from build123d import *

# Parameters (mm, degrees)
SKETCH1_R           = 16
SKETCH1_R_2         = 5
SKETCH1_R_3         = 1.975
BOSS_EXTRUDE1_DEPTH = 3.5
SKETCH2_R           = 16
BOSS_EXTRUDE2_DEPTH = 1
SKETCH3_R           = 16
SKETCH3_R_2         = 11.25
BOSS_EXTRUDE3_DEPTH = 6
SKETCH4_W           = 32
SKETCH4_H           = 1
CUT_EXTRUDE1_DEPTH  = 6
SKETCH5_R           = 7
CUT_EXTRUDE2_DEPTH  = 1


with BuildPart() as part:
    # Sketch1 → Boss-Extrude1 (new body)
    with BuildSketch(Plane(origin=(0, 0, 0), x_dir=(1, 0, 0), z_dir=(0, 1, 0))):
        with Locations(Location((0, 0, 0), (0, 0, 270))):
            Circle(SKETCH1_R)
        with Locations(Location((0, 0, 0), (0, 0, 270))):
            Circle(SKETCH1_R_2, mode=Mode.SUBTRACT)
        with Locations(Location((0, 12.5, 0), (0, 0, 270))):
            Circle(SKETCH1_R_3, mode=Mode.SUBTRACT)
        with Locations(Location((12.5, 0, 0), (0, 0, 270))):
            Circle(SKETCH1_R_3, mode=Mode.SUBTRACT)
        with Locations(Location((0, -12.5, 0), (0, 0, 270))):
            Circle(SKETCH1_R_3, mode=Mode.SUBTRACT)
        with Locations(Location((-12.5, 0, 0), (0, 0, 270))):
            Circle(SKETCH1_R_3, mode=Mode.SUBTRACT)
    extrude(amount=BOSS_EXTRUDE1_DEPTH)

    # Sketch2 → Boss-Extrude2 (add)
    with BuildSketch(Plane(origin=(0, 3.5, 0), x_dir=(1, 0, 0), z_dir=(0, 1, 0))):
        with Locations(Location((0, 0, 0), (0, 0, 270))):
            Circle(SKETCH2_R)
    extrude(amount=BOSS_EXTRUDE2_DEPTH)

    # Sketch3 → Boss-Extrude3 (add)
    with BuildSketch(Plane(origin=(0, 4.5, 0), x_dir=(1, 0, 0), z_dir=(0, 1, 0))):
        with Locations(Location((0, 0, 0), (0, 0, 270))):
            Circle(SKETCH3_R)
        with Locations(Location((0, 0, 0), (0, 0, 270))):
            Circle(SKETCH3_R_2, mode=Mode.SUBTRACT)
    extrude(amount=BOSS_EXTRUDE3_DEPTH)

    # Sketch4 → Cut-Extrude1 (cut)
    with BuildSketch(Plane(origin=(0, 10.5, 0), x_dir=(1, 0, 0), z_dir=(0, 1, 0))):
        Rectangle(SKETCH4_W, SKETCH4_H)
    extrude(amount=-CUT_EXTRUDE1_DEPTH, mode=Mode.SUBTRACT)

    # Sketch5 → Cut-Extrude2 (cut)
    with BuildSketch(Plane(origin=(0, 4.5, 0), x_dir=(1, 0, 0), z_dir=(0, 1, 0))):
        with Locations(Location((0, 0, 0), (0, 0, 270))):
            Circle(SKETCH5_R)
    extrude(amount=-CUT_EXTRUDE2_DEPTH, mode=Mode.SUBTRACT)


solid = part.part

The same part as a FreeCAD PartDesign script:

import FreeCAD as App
import Part
import Sketcher
from FreeCAD import Vector
Q = App.Units.Quantity

doc = App.newDocument("Part")
body = doc.addObject("PartDesign::Body", "Body")

# Sketch on XZ plane
sketch1 = body.newObject("Sketcher::SketchObject", "Sketch")
sketch1.AttachmentSupport = (doc.getObject("XZ_Plane"), [""])
sketch1.MapMode = "FlatFace"
sketch1.addGeometry([
    Part.Circle(Vector(0, 0, 0), Vector(0, 0, 1), 16),  # 0
    Part.Circle(Vector(0, -12.5, 0), Vector(0, 0, 1), 1.975),  # 1
    Part.Circle(Vector(-12.5, 0, 0), Vector(0, 0, 1), 1.975),  # 2
    Part.Circle(Vector(0, 0, 0), Vector(0, 0, 1), 5),  # 3
    Part.Circle(Vector(12.5, 0, 0), Vector(0, 0, 1), 1.975),  # 4
    Part.Circle(Vector(0, 12.5, 0), Vector(0, 0, 1), 1.975),  # 5
], False)
sketch1.addConstraint([
    Sketcher.Constraint("Coincident", 0, 3, -1, 1),
    Sketcher.Constraint("Coincident", 3, 3, -1, 1),
    Sketcher.Constraint("Equal", 1, 2),
    Sketcher.Constraint("Equal", 2, 4),
    Sketcher.Constraint("Equal", 4, 5),
    Sketcher.Constraint("Symmetric", 2, 3, 4, 3, -1, 1),
    Sketcher.Constraint("Symmetric", 1, 3, 5, 3, -1, 1),
    Sketcher.Constraint("PointOnObject", 1, 3, -2),
    Sketcher.Constraint("PointOnObject", 2, 3, -1),
    Sketcher.Constraint("Diameter", 0, Q("32 mm")),
    Sketcher.Constraint("Diameter", 3, Q("10 mm")),
    Sketcher.Constraint("Diameter", 1, Q("3.95 mm")),
    Sketcher.Constraint("DistanceX", 2, 3, 4, 3, Q("25 mm")),
    Sketcher.Constraint("DistanceY", 1, 3, 5, 3, Q("25 mm")),
])
pad1 = body.newObject("PartDesign::Pad", "Pad")
pad1.Profile = sketch1
pad1.Length = 3.5
pad1.Reversed = True

# Sketch on XZ plane
sketch2 = body.newObject("Sketcher::SketchObject", "Sketch001")
sketch2.AttachmentSupport = (doc.getObject("XZ_Plane"), [""])
sketch2.MapMode = "FlatFace"
sketch2.AttachmentOffset = App.Placement(Vector(0, 0, -3.5), App.Rotation())
sketch2.addGeometry(Part.Circle(Vector(0, 0, 0), Vector(0, 0, 1), 16), False)
sketch2.addConstraint([
    Sketcher.Constraint("Coincident", 0, 3, -1, 1),
    Sketcher.Constraint("Diameter", 0, Q("32 mm")),
])
pad2 = body.newObject("PartDesign::Pad", "Pad001")
pad2.Profile = sketch2
pad2.Length = 1
pad2.Reversed = True

# Sketch on XZ plane
sketch3 = body.newObject("Sketcher::SketchObject", "Sketch002")
sketch3.AttachmentSupport = (doc.getObject("XZ_Plane"), [""])
sketch3.MapMode = "FlatFace"
sketch3.AttachmentOffset = App.Placement(Vector(0, 0, -4.5), App.Rotation())
sketch3.addGeometry([
    Part.Circle(Vector(0, 0, 0), Vector(0, 0, 1), 16),
    Part.Circle(Vector(0, 0, 0), Vector(0, 0, 1), 11.25),
], False)
sketch3.addConstraint([
    Sketcher.Constraint("Coincident", 0, 3, -1, 1),
    Sketcher.Constraint("Coincident", 1, 3, -1, 1),
    Sketcher.Constraint("Diameter", 0, Q("32 mm")),
    Sketcher.Constraint("Diameter", 1, Q("22.5 mm")),
])
pad3 = body.newObject("PartDesign::Pad", "Pad002")
pad3.Profile = sketch3
pad3.Length = 6
pad3.Reversed = True

# Sketch on XZ plane
sketch4 = body.newObject("Sketcher::SketchObject", "Sketch003")
sketch4.AttachmentSupport = (doc.getObject("XZ_Plane"), [""])
sketch4.MapMode = "FlatFace"
sketch4.AttachmentOffset = App.Placement(Vector(0, 0, -10.5), App.Rotation())
sketch4.addGeometry([
    Part.LineSegment(Vector(-16, -0.5, 0), Vector(-16, 0.5, 0)),
    Part.LineSegment(Vector(-16, 0.5, 0), Vector(16, 0.5, 0)),
    Part.LineSegment(Vector(16, 0.5, 0), Vector(16, -0.5, 0)),
    Part.LineSegment(Vector(16, -0.5, 0), Vector(-16, -0.5, 0)),
], False)
sketch4.addConstraint([
    Sketcher.Constraint("Coincident", 0, 2, 1, 1),
    Sketcher.Constraint("Coincident", 1, 2, 2, 1),
    Sketcher.Constraint("Coincident", 2, 2, 3, 1),
    Sketcher.Constraint("Coincident", 3, 2, 0, 1),
    Sketcher.Constraint("Vertical", 0),
    Sketcher.Constraint("Horizontal", 1),
    Sketcher.Constraint("Vertical", 2),
    Sketcher.Constraint("Horizontal", 3),
    Sketcher.Constraint("Symmetric", 0, 2, 2, 2, -1, 1),
    Sketcher.Constraint("DistanceX", 1, 1, 1, 2, Q("32 mm")),
    Sketcher.Constraint("DistanceY", 0, 1, 0, 2, Q("1 mm")),
])
pocket1 = body.newObject("PartDesign::Pocket", "Pocket")
pocket1.Profile = sketch4
pocket1.Length = 6
pocket1.Reversed = True

# Sketch on XZ plane
sketch5 = body.newObject("Sketcher::SketchObject", "Sketch004")
sketch5.AttachmentSupport = (doc.getObject("XZ_Plane"), [""])
sketch5.MapMode = "FlatFace"
sketch5.AttachmentOffset = App.Placement(Vector(0, 0, -4.5), App.Rotation())
sketch5.addGeometry(Part.Circle(Vector(0, 0, 0), Vector(0, 0, 1), 7), False)
sketch5.addConstraint([
    Sketcher.Constraint("Coincident", 0, 3, -1, 1),
    Sketcher.Constraint("Diameter", 0, Q("14 mm")),
])
pocket2 = body.newObject("PartDesign::Pocket", "Pocket001")
pocket2.Profile = sketch5
pocket2.Length = 1
pocket2.Reversed = True

doc.recompute()
